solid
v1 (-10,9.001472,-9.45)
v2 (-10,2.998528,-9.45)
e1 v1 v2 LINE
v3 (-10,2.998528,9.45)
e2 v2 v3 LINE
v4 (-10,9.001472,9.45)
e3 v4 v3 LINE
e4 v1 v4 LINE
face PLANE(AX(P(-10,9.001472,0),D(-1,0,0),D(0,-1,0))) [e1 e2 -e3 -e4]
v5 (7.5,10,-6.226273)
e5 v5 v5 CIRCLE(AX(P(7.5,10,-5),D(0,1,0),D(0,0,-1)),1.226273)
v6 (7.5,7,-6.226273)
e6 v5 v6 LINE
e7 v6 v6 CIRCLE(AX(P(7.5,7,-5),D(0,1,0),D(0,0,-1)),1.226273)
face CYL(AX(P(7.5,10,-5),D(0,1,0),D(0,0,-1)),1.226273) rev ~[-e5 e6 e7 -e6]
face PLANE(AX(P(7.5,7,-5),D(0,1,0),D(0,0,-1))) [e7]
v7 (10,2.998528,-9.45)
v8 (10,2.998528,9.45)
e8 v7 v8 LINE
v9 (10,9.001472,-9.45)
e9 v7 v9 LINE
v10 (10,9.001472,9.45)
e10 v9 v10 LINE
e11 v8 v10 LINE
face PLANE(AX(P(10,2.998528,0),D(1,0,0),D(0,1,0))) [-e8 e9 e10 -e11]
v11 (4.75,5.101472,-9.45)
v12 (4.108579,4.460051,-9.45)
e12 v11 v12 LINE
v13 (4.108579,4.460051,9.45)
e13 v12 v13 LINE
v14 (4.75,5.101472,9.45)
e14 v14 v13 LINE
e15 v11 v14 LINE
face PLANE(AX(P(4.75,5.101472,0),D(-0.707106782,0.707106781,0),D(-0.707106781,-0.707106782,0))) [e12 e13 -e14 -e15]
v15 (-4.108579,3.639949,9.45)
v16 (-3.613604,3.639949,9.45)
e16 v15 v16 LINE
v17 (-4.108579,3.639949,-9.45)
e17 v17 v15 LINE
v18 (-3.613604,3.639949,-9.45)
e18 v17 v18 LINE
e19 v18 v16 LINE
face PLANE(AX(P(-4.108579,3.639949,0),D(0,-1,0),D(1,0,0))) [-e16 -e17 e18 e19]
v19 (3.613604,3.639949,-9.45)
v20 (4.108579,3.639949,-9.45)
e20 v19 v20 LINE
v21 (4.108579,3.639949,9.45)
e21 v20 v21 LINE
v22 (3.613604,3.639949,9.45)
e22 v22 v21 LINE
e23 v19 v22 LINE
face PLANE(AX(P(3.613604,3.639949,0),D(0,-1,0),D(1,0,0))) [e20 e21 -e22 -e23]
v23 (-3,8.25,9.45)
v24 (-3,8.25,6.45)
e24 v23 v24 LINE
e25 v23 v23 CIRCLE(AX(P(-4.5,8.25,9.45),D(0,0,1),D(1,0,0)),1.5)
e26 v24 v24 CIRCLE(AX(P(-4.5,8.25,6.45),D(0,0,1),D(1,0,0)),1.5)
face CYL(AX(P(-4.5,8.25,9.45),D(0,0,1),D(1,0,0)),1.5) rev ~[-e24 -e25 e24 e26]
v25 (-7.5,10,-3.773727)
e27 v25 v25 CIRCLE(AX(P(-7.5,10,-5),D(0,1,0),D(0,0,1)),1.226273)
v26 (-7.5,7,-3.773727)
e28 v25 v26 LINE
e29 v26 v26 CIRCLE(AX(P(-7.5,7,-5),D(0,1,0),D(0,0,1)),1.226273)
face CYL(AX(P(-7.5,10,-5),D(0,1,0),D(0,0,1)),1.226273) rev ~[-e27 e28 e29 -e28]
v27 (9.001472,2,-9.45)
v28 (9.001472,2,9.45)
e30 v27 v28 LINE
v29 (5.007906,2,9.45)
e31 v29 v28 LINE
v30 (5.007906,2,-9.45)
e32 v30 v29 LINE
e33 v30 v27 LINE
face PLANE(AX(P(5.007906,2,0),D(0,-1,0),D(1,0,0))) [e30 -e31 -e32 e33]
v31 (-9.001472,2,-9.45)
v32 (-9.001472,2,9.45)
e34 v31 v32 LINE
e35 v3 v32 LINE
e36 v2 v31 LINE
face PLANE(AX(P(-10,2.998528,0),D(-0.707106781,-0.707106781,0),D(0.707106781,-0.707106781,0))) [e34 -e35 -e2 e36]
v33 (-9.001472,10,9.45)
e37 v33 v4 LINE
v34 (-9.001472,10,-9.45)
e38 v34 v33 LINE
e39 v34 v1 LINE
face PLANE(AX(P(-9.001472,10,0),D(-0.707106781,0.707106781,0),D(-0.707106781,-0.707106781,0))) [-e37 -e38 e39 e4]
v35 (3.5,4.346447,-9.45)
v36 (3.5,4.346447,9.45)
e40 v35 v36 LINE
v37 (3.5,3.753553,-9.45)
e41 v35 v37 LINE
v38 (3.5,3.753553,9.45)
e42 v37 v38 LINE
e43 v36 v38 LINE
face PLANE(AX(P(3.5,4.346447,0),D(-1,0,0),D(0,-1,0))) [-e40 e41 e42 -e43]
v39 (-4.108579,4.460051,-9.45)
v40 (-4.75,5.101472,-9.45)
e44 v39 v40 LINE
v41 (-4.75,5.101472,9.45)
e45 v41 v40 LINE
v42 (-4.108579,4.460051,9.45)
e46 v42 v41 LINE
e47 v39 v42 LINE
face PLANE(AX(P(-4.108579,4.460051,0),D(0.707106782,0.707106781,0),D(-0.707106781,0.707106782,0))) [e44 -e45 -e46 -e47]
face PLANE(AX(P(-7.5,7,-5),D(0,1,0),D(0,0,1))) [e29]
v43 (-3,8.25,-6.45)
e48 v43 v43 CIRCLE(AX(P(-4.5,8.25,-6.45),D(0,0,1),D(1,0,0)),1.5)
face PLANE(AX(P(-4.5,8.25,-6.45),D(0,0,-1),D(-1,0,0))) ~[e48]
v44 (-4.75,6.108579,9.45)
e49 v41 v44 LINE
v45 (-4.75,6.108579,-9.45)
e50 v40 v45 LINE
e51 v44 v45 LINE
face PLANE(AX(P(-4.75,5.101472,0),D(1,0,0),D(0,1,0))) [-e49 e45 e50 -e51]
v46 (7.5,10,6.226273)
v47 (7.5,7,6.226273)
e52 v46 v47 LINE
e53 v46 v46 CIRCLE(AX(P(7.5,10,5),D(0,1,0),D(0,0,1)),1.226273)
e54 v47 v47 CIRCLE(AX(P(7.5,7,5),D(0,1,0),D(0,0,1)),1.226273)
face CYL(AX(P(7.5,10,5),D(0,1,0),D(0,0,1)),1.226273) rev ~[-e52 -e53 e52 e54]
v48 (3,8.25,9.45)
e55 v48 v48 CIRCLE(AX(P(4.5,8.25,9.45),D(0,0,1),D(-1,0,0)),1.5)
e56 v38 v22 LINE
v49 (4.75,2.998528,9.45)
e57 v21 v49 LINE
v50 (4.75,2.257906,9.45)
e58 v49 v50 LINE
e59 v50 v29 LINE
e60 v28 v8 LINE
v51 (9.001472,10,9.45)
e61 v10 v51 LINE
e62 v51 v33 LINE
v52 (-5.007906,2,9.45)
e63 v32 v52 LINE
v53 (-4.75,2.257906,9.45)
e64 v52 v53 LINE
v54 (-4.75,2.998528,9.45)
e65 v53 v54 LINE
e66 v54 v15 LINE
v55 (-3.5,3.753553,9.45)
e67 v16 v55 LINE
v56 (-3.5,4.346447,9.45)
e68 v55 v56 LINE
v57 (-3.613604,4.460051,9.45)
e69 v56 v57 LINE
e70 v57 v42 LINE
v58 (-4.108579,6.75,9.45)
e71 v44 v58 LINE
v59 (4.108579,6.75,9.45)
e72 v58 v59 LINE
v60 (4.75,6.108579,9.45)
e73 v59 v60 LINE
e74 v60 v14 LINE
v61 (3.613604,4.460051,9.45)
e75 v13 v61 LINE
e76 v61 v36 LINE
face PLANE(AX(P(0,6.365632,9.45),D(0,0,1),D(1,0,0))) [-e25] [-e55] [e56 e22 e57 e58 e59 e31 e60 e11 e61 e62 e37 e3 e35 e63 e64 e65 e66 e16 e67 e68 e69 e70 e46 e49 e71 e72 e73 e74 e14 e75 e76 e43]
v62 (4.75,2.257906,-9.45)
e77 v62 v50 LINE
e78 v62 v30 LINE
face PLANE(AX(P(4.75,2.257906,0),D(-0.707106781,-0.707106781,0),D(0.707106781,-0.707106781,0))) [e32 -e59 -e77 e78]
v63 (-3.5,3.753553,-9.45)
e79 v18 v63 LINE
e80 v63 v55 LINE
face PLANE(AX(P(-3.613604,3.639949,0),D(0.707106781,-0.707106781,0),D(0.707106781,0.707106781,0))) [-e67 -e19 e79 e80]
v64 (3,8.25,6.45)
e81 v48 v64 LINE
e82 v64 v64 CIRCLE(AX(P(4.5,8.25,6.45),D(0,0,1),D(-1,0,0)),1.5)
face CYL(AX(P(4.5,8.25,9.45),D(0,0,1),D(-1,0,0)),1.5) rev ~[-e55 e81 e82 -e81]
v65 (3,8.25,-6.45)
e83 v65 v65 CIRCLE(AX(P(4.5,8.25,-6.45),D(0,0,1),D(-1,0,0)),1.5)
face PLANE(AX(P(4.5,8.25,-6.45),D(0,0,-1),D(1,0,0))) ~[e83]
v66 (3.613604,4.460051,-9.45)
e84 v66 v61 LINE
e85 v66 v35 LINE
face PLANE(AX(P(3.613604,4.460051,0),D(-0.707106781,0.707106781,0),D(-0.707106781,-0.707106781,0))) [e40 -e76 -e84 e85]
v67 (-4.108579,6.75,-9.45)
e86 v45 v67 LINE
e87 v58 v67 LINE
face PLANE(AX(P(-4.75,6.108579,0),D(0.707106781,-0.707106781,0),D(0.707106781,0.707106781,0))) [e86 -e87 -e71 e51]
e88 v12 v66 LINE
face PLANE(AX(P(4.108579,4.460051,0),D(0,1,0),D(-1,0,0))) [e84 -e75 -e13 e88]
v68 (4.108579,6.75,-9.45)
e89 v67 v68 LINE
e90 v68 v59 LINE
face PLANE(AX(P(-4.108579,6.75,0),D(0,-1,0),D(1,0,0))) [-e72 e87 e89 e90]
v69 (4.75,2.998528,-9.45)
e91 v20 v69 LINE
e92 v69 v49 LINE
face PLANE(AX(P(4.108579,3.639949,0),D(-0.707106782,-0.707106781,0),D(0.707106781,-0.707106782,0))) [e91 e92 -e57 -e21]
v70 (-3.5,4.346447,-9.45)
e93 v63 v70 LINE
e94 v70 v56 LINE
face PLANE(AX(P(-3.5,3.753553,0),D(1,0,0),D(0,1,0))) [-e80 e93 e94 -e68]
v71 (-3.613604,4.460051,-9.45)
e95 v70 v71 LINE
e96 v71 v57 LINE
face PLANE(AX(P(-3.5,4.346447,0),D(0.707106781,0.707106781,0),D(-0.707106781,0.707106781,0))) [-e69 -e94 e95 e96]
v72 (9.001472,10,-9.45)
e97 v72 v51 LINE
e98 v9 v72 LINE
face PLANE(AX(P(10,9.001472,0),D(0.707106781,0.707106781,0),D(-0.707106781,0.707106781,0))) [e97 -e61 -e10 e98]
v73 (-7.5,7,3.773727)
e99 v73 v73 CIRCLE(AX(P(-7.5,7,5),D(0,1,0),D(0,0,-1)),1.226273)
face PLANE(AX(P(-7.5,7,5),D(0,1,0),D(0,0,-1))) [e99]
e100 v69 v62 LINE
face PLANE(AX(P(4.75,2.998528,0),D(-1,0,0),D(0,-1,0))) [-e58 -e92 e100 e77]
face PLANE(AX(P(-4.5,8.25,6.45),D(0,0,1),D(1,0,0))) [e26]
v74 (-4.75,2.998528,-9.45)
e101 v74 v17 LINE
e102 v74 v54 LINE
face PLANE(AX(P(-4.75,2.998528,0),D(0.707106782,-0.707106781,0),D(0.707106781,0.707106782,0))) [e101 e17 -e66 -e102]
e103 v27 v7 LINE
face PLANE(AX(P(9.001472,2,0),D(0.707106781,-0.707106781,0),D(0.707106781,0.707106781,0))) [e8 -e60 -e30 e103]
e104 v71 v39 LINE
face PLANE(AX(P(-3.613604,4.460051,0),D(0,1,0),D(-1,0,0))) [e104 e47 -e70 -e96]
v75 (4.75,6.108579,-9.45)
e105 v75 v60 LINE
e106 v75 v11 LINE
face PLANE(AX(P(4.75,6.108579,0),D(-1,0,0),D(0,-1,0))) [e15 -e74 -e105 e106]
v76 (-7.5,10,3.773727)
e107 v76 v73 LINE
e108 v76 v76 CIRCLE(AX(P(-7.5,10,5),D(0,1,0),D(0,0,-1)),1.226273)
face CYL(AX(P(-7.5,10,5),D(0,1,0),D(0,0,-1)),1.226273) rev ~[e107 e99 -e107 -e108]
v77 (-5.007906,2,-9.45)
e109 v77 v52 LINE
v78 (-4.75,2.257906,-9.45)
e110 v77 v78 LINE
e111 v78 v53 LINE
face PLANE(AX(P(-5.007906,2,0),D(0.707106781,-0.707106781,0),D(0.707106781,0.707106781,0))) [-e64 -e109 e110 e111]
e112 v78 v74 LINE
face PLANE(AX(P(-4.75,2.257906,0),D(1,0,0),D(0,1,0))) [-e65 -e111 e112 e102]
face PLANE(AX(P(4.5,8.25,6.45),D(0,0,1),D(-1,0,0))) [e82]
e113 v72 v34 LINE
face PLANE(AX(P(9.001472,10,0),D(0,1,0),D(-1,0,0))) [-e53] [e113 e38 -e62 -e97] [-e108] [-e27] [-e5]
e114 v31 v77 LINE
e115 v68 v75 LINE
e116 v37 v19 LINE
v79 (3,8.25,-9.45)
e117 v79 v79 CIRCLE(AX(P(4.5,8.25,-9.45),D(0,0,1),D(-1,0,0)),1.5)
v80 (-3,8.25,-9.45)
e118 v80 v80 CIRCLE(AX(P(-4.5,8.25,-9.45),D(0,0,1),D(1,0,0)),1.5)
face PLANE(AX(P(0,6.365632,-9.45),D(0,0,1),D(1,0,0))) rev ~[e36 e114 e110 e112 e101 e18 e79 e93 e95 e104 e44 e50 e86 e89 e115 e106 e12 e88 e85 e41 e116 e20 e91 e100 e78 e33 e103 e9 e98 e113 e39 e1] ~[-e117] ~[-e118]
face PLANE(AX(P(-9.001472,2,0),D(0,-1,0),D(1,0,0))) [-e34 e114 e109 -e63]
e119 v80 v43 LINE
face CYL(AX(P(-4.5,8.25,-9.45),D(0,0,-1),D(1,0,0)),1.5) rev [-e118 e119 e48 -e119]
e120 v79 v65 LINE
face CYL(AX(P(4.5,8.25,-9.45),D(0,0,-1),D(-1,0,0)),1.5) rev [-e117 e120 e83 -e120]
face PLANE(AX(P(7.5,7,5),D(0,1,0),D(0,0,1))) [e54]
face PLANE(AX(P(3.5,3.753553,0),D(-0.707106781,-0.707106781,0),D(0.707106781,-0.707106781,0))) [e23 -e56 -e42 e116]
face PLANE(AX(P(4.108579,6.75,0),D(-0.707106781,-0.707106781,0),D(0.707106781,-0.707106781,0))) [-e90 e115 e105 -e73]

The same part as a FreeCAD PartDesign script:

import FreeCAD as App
import Part
import Sketcher

V = App.Vector

doc = App.newDocument("Part")
body = doc.addObject("PartDesign::Body", "Body")

sketch1 = body.newObject("Sketcher::SketchObject", "Sketch")
sketch1.AttachmentSupport = (doc.getObject("XY_Plane"), [""])
sketch1.MapMode = "FlatFace"
sketch1.addGeometry(Part.LineSegment(V(-4.108579, 6.75, 0), V(4.108579, 6.75, 0)), False)
sketch1.addGeometry(Part.LineSegment(V(4.108579, 6.75, 0), V(4.75, 6.108579, 0)), False)
sketch1.addGeometry(Part.LineSegment(V(4.75, 6.108579, 0), V(4.75, 5.101472, 0)), False)
sketch1.addGeometry(Part.LineSegment(V(4.75, 5.101472, 0), V(4.108579, 4.460051, 0)), False)
sketch1.addGeometry(Part.LineSegment(V(4.108579, 4.460051, 0), V(3.613604, 4.460051, 0)), False)
sketch1.addGeometry(Part.LineSegment(V(3.613604, 4.460051, 0), V(3.5, 4.346447, 0)), False)
sketch1.addGeometry(Part.LineSegment(V(3.5, 4.346447, 0), V(3.5, 3.753553, 0)), False)
sketch1.addGeometry(Part.LineSegment(V(3.5, 3.753553, 0), V(3.613604, 3.639949, 0)), False)
sketch1.addGeometry(Part.LineSegment(V(3.613604, 3.639949, 0), V(4.108579, 3.639949, 0)), False)
sketch1.addGeometry(Part.LineSegment(V(4.108579, 3.639949, 0), V(4.75, 2.998528, 0)), False)
sketch1.addGeometry(Part.LineSegment(V(4.75, 2.998528, 0), V(4.75, 2.257906, 0)), False)
sketch1.addGeometry(Part.LineSegment(V(4.75, 2.257906, 0), V(5.007906, 2, 0)), False)
sketch1.addGeometry(Part.LineSegment(V(5.007906, 2, 0), V(9.001472, 2, 0)), False)
sketch1.addGeometry(Part.LineSegment(V(9.001472, 2, 0), V(10, 2.998528, 0)), False)
sketch1.addGeometry(Part.LineSegment(V(10, 2.998528, 0), V(10, 9.001472, 0)), False)
sketch1.addGeometry(Part.LineSegment(V(10, 9.001472, 0), V(9.001472, 10, 0)), False)
sketch1.addGeometry(Part.LineSegment(V(9.001472, 10, 0), V(-9.001472, 10, 0)), False)
sketch1.addGeometry(Part.LineSegment(V(-9.001472, 10, 0), V(-10, 9.001472, 0)), False)
sketch1.addGeometry(Part.LineSegment(V(-10, 9.001472, 0), V(-10, 2.998528, 0)), False)
sketch1.addGeometry(Part.LineSegment(V(-10, 2.998528, 0), V(-9.001472, 2, 0)), False)
sketch1.addGeometry(Part.LineSegment(V(-9.001472, 2, 0), V(-5.007906, 2, 0)), False)
sketch1.addGeometry(Part.LineSegment(V(-5.007906, 2, 0), V(-4.75, 2.257906, 0)), False)
sketch1.addGeometry(Part.LineSegment(V(-4.75, 2.257906, 0), V(-4.75, 2.998528, 0)), False)
sketch1.addGeometry(Part.LineSegment(V(-4.75, 2.998528, 0), V(-4.108579, 3.639949, 0)), False)
sketch1.addGeometry(Part.LineSegment(V(-4.108579, 3.639949, 0), V(-3.613604, 3.639949, 0)), False)
sketch1.addGeometry(Part.LineSegment(V(-3.613604, 3.639949, 0), V(-3.5, 3.753553, 0)), False)
sketch1.addGeometry(Part.LineSegment(V(-3.5, 3.753553, 0), V(-3.5, 4.346447, 0)), False)
sketch1.addGeometry(Part.LineSegment(V(-3.5, 4.346447, 0), V(-3.613604, 4.460051, 0)), False)
sketch1.addGeometry(Part.LineSegment(V(-3.613604, 4.460051, 0), V(-4.108579, 4.460051, 0)), False)
sketch1.addGeometry(Part.LineSegment(V(-4.108579, 4.460051, 0), V(-4.75, 5.101472, 0)), False)
sketch1.addGeometry(Part.LineSegment(V(-4.75, 5.101472, 0), V(-4.75, 6.108579, 0)), False)
sketch1.addGeometry(Part.LineSegment(V(-4.75, 6.108579, 0), V(-4.108579, 6.75, 0)), False)
sketch1.addConstraint(Sketcher.Constraint("Coincident", 0, 2, 1, 1))
sketch1.addConstraint(Sketcher.Constraint("Coincident", 1, 2, 2, 1))
sketch1.addConstraint(Sketcher.Constraint("Coincident", 2, 2, 3, 1))
sketch1.addConstraint(Sketcher.Constraint("Coincident", 3, 2, 4, 1))
sketch1.addConstraint(Sketcher.Constraint("Coincident", 4, 2, 5, 1))
sketch1.addConstraint(Sketcher.Constraint("Coincident", 5, 2, 6, 1))
sketch1.addConstraint(Sketcher.Constraint("Coincident", 6, 2, 7, 1))
sketch1.addConstraint(Sketcher.Constraint("Coincident", 7, 2, 8, 1))
sketch1.addConstraint(Sketcher.Constraint("Coincident", 8, 2, 9, 1))
sketch1.addConstraint(Sketcher.Constraint("Coincident", 9, 2, 10, 1))
sketch1.addConstraint(Sketcher.Constraint("Coincident", 10, 2, 11, 1))
sketch1.addConstraint(Sketcher.Constraint("Coincident", 11, 2, 12, 1))
sketch1.addConstraint(Sketcher.Constraint("Coincident", 12, 2, 13, 1))
sketch1.addConstraint(Sketcher.Constraint("Coincident", 13, 2, 14, 1))
sketch1.addConstraint(Sketcher.Constraint("Coincident", 14, 2, 15, 1))
sketch1.addConstraint(Sketcher.Constraint("Coincident", 15, 2, 16, 1))
sketch1.addConstraint(Sketcher.Constraint("Coincident", 16, 2, 17, 1))
sketch1.addConstraint(Sketcher.Constraint("Coincident", 17, 2, 18, 1))
sketch1.addConstraint(Sketcher.Constraint("Coincident", 18, 2, 19, 1))
sketch1.addConstraint(Sketcher.Constraint("Coincident", 19, 2, 20, 1))
sketch1.addConstraint(Sketcher.Constraint("Coincident", 20, 2, 21, 1))
sketch1.addConstraint(Sketcher.Constraint("Coincident", 21, 2, 22, 1))
sketch1.addConstraint(Sketcher.Constraint("Coincident", 22, 2, 23, 1))
sketch1.addConstraint(Sketcher.Constraint("Coincident", 23, 2, 24, 1))
sketch1.addConstraint(Sketcher.Constraint("Coincident", 24, 2, 25, 1))
sketch1.addConstraint(Sketcher.Constraint("Coincident", 25, 2, 26, 1))
sketch1.addConstraint(Sketcher.Constraint("Coincident", 26, 2, 27, 1))
sketch1.addConstraint(Sketcher.Constraint("Coincident", 27, 2, 28, 1))
sketch1.addConstraint(Sketcher.Constraint("Coincident", 28, 2, 29, 1))
sketch1.addConstraint(Sketcher.Constraint("Coincident", 29, 2, 30, 1))
sketch1.addConstraint(Sketcher.Constraint("Coincident", 30, 2, 31, 1))
sketch1.addConstraint(Sketcher.Constraint("Coincident", 31, 2, 0, 1))
sketch1.addConstraint(Sketcher.Constraint("Horizontal", 0))
sketch1.addConstraint(Sketcher.Constraint("Vertical", 2))
sketch1.addConstraint(Sketcher.Constraint("Horizontal", 4))
sketch1.addConstraint(Sketcher.Constraint("Vertical", 6))
sketch1.addConstraint(Sketcher.Constraint("Horizontal", 8))
sketch1.addConstraint(Sketcher.Constraint("Vertical", 10))
sketch1.addConstraint(Sketcher.Constraint("Horizontal", 12))
sketch1.addConstraint(Sketcher.Constraint("Vertical", 14))
sketch1.addConstraint(Sketcher.Constraint("Horizontal", 16))
sketch1.addConstraint(Sketcher.Constraint("Vertical", 18))
sketch1.addConstraint(Sketcher.Constraint("Horizontal", 20))
sketch1.addConstraint(Sketcher.Constraint("Vertical", 22))
sketch1.addConstraint(Sketcher.Constraint("Horizontal", 24))
sketch1.addConstraint(Sketcher.Constraint("Vertical", 26))
sketch1.addConstraint(Sketcher.Constraint("Horizontal", 28))
sketch1.addConstraint(Sketcher.Constraint("Vertical", 30))
sketch1.addConstraint(Sketcher.Constraint("Symmetric", 14, 2, 17, 2, -2))
sketch1.addConstraint(Sketcher.Constraint("Symmetric", 12, 2, 19, 2, -2))
sketch1.addConstraint(Sketcher.Constraint("Symmetric", 10, 2, 21, 2, -2))
sketch1.addConstraint(Sketcher.Constraint("Symmetric", 8, 2, 23, 2, -2))
sketch1.addConstraint(Sketcher.Constraint("Symmetric", 6, 2, 25, 2, -2))
sketch1.addConstraint(Sketcher.Constraint("Symmetric", 4, 2, 27, 2, -2))
sketch1.addConstraint(Sketcher.Constraint("Symmetric", 2, 2, 29, 2, -2))
sketch1.addConstraint(Sketcher.Constraint("Perpendicular", 1, 3))
sketch1.addConstraint(Sketcher.Constraint("Parallel", 3, 5))
sketch1.addConstraint(Sketcher.Constraint("Perpendicular", 5, 7))
sketch1.addConstraint(Sketcher.Constraint("Parallel", 7, 9))
sketch1.addConstraint(Sketcher.Constraint("Parallel", 9, 11))
sketch1.addConstraint(Sketcher.Constraint("Perpendicular", 11, 13))
sketch1.addConstraint(Sketcher.Constraint("Perpendicular", 13, 15))
sketch1.addConstraint(Sketcher.Constraint("Perpendicular", 15, 17))
sketch1.addConstraint(Sketcher.Constraint("Perpendicular", 17, 19))
sketch1.addConstraint(Sketcher.Constraint("Perpendicular", 19, 21))
sketch1.addConstraint(Sketcher.Constraint("Parallel", 21, 23))
sketch1.addConstraint(Sketcher.Constraint("Parallel", 23, 25))
sketch1.addConstraint(Sketcher.Constraint("Perpendicular", 25, 27))
sketch1.addConstraint(Sketcher.Constraint("Parallel", 27, 29))
sketch1.addConstraint(Sketcher.Constraint("Perpendicular", 29, 31))
sketch1.addConstraint(Sketcher.Constraint("Horizontal", 9, 2, 13, 2))
sketch1.addConstraint(Sketcher.Constraint("Horizontal", 13, 2, 18, 2))
sketch1.addConstraint(Sketcher.Constraint("Horizontal", 1, 2, 30, 2))
sketch1.addConstraint(Sketcher.Constraint("Vertical", 0, 2, 3, 2))
sketch1.addConstraint(Sketcher.Constraint("Vertical", 4, 2, 7, 2))
sketch1.addConstraint(Sketcher.Constraint("Vertical", 3, 2, 8, 2))
sketch1.addConstraint(Sketcher.Constraint("Vertical", 2, 2, 9, 2))
sketch1.addConstraint(Sketcher.Constraint("Vertical", 12, 2, 15, 2))
sketch1.addConstraint(Sketcher.Constraint("DistanceY", -1, 1, 11, 2, 2.0))
sketch1.addConstraint(Sketcher.Constraint("DistanceX", -1, 1, 13, 2, 10.0))
sketch1.addConstraint(Sketcher.Constraint("DistanceY", -1, 1, 15, 2, 10.0))
sketch1.addConstraint(Sketcher.Constraint("DistanceX", -1, 1, 5, 2, 3.5))
sketch1.addConstraint(Sketcher.Constraint("DistanceY", 2, 2, 14, 2, 3.9))
sketch1.addConstraint(Sketcher.Constraint("DistanceY", -1, 1, 0, 2, 6.75))
sketch1.addConstraint(Sketcher.Constraint("DistanceX", -1, 1, 1, 2, 4.75))
sketch1.addConstraint(Sketcher.Constraint("DistanceY", 7, 2, 4, 2, 0.820101))
sketch1.addConstraint(Sketcher.Constraint("DistanceX", 7, 2, 11, 2, 1.394302))
sketch1.addConstraint(Sketcher.Constraint("Distance", 5, 0.16066))
sketch1.addConstraint(Sketcher.Constraint("DistanceX", 0, 1, 0, 2, 8.217157))
pad1 = body.newObject("PartDesign::Pad", "Pad")
pad1.Profile = sketch1
pad1.Length = 18.9
pad1.Midplane = True

sketch2 = body.newObject("Sketcher::SketchObject", "Sketch001")
sketch2.AttachmentSupport = (doc.getObject("XY_Plane"), [""])
sketch2.MapMode = "FlatFace"
sketch2.AttachmentOffset = App.Placement(V(0, 0, 9.45), App.Rotation())
sketch2.addGeometry(Part.Circle(V(-4.5, 8.25, 0), V(0, 0, 1), 1.5), False)
sketch2.addGeometry(Part.Circle(V(4.5, 8.25, 0), V(0, 0, 1), 1.5), False)
sketch2.addConstraint(Sketcher.Constraint("Equal", 0, 1))
sketch2.addConstraint(Sketcher.Constraint("Symmetric", 0, 3, 1, 3, -2))
sketch2.addConstraint(Sketcher.Constraint("Diameter", 0, 3.0))
sketch2.addConstraint(Sketcher.Constraint("DistanceX", 0, 3, 1, 3, 9.0))
sketch2.addConstraint(Sketcher.Constraint("DistanceY", -1, 1, 0, 3, 8.25))
pocket1 = body.newObject("PartDesign::Pocket", "Pocket")
pocket1.Profile = sketch2
pocket1.Length = 3
doc.recompute()

mirrored = body.newObject("PartDesign::Mirrored", "Mirrored")
mirrored.Originals = [pocket1]
mirrored.MirrorPlane = (doc.getObject("XY_Plane"), [""])
body.Tip = mirrored

sketch3 = body.newObject("Sketcher::SketchObject", "Sketch002")
sketch3.AttachmentSupport = (doc.getObject("XZ_Plane"), [""])
sketch3.MapMode = "FlatFace"
sketch3.AttachmentOffset = App.Placement(V(0, 0, -10), App.Rotation())
sketch3.addGeometry(Part.Circle(V(7.5, 5, 0), V(0, 0, 1), 1.226273), False)
sketch3.addGeometry(Part.Circle(V(-7.5, 5, 0), V(0, 0, 1), 1.226273), False)
sketch3.addGeometry(Part.Circle(V(-7.5, -5, 0), V(0, 0, 1), 1.226273), False)
sketch3.addGeometry(Part.Circle(V(7.5, -5, 0), V(0, 0, 1), 1.226273), False)
sketch3.addConstraint(Sketcher.Constraint("Equal", 0, 1))
sketch3.addConstraint(Sketcher.Constraint("Equal", 1, 2))
sketch3.addConstraint(Sketcher.Constraint("Equal", 2, 3))
sketch3.addConstraint(Sketcher.Constraint("Symmetric", 0, 3, 2, 3, -1, 1))
sketch3.addConstraint(Sketcher.Constraint("Symmetric", 1, 3, 3, 3, -1, 1))
sketch3.addConstraint(Sketcher.Constraint("Symmetric", 0, 3, 1, 3, -2))
sketch3.addConstraint(Sketcher.Constraint("DistanceY", -1, 1, 0, 3, 5.0))
sketch3.addConstraint(Sketcher.Constraint("DistanceX", 1, 3, 0, 3, 15.0))
sketch3.addConstraint(Sketcher.Constraint("Diameter", 0, 2.452545))
pocket2 = body.newObject("PartDesign::Pocket", "Pocket001")
pocket2.Profile = sketch3
pocket2.Length = 3
pocket2.Reversed = True

doc.recompute()
